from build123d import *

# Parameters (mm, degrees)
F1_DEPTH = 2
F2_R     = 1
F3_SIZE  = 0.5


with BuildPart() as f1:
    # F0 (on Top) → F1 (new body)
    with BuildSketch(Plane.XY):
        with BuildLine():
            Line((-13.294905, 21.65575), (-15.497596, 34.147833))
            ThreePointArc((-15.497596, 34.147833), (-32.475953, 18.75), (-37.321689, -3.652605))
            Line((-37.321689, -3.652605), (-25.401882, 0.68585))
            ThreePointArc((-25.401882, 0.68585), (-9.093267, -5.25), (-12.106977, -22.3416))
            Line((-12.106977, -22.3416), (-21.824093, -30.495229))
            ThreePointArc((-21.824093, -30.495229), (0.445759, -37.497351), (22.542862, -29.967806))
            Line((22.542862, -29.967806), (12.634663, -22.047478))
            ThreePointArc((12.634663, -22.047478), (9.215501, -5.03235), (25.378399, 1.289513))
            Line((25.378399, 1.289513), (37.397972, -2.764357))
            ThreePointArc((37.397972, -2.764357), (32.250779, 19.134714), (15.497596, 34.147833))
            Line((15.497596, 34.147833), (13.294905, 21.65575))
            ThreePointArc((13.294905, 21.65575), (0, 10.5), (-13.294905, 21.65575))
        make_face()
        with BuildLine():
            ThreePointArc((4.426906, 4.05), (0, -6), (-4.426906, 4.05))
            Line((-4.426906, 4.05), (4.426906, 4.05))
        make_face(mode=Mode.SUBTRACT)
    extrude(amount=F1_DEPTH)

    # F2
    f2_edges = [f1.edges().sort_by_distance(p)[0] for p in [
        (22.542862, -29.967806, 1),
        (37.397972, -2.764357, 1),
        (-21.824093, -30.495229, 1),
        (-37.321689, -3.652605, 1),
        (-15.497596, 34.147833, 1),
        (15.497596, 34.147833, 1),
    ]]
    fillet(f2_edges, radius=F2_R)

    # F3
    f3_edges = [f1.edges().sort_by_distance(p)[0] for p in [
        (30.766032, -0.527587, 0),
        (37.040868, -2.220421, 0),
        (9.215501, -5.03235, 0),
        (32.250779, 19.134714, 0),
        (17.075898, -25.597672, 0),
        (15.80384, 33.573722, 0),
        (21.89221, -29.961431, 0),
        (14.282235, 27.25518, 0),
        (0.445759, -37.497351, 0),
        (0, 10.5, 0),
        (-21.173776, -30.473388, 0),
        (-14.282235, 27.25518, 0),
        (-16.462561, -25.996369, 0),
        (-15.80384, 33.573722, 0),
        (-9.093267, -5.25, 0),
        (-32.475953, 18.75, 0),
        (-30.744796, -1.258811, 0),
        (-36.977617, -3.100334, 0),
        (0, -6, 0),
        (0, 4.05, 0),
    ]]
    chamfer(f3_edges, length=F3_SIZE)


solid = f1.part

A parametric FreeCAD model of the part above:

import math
import FreeCAD as App
import Part
import Sketcher

V = App.Vector
Q = App.Units.Quantity


def edges_at(feature, points):
    """Names of the edges that pass closest to the given points."""
    edges = feature.Shape.Edges
    near = lambda p: min(range(len(edges)), key=lambda i: edges[i].distToShape(Part.Vertex(*p))[0])
    return sorted({f"Edge{near(p) + 1}" for p in points})

doc = App.newDocument("Part")
body = doc.addObject("PartDesign::Body", "Body")

# Sketch on XY plane
sketch1 = body.newObject("Sketcher::SketchObject", "Sketch")
sketch1.AttachmentSupport = (doc.getObject("XY_Plane"), [""])
sketch1.MapMode = "FlatFace"
sketch1.addGeometry([
    Part.LineSegment(V(-13.294905, 21.65575, 0), V(-15.497596, 34.147833, 0)),  # 0
    Part.ArcOfCircle(Part.Circle(V(-0.000002, 0.000001, 0), V(0, 0, 1), 37.499998), math.radians(114.410366), math.radians(185.589634)),  # 1
    Part.LineSegment(V(-37.321689, -3.652605, 0), V(-25.401882, 0.68585, 0)),  # 2
    Part.ArcOfCircle(Part.Circle(V(-20.78461, -12, 0), V(0, 0, 1), 13.5), math.radians(-50), math.radians(110.000002)),  # 3
    Part.LineSegment(V(-12.106977, -22.3416, 0), V(-21.824093, -30.495229, 0)),  # 4
    Part.ArcOfCircle(Part.Circle(V(0, -0.000001, 0), V(0, 0, 1), 37.5), math.radians(-125.589631), math.radians(-53.048198)),  # 5
    Part.LineSegment(V(22.542862, -29.967806, 0), V(12.634663, -22.047478, 0)),  # 6
    Part.ArcOfCircle(Part.Circle(V(21.064002, -11.502515, 0), V(0, 0, 1), 13.5), math.radians(71.362171), math.radians(231.362171)),  # 7
    Part.LineSegment(V(25.378399, 1.289513, 0), V(37.397972, -2.764357, 0)),  # 8
    Part.ArcOfCircle(Part.Circle(V(0.000003, 0.000002, 0), V(0, 0, 1), 37.499997), math.radians(-4.227464), math.radians(65.589634)),  # 9
    Part.LineSegment(V(15.497596, 34.147833, 0), V(13.294905, 21.65575, 0)),  # 10
    Part.ArcOfCircle(Part.Circle(V(0, 24, 0), V(0, 0, 1), 13.5), math.radians(-170.000001), math.radians(-9.999999)),  # 11
    Part.LineSegment(V(-4.426906, 4.05, 0), V(4.426906, 4.05, 0)),  # 12
    Part.ArcOfCircle(Part.Circle(V(0, 0, 0), V(0, 0, 1), 6), math.radians(137.545846), math.radians(402.454154)),  # 13
], False)
sketch1.addConstraint([
    Sketcher.Constraint("Coincident", 0, 2, 1, 1),
    Sketcher.Constraint("Coincident", 1, 2, 2, 1),
    Sketcher.Constraint("Tangent", 2, 2, 3, 2),
    Sketcher.Constraint("Tangent", 3, 1, 4, 1),
    Sketcher.Constraint("Coincident", 4, 2, 5, 1),
    Sketcher.Constraint("Coincident", 5, 2, 6, 1),
    Sketcher.Constraint("Tangent", 6, 2, 7, 2),
    Sketcher.Constraint("Tangent", 7, 1, 8, 1),
    Sketcher.Constraint("Coincident", 8, 2, 9, 1),
    Sketcher.Constraint("Coincident", 9, 2, 10, 1),
    Sketcher.Constraint("Tangent", 10, 2, 11, 2),
    Sketcher.Constraint("Tangent", 11, 1, 0, 1),
    Sketcher.Constraint("Coincident", 12, 1, 13, 1),
    Sketcher.Constraint("Coincident", 13, 2, 12, 2),
    Sketcher.Constraint("Horizontal", 12),
    Sketcher.Constraint("Coincident", 1, 3, -1, 1),
    Sketcher.Constraint("Coincident", 5, 3, -1, 1),
    Sketcher.Constraint("Coincident", 9, 3, -1, 1),
    Sketcher.Constraint("Coincident", 13, 3, -1, 1),
    Sketcher.Constraint("Equal", 3, 7),
    Sketcher.Constraint("Equal", 1, 9),
    Sketcher.Constraint("Equal", 7, 11),
    Sketcher.Constraint("Symmetric", 10, 2, 11, 1, -2),
    Sketcher.Constraint("Equal", 0, 2),
    Sketcher.Constraint("Equal", 2, 4),
    Sketcher.Constraint("Equal", 4, 6),
    Sketcher.Constraint("Equal", 6, 8),
    Sketcher.Constraint("Radius", 13, 6.0),
    Sketcher.Constraint("Radius", 3, 13.5),
    Sketcher.Constraint("Radius", 5, 37.5),
    Sketcher.Constraint("Angle", 0, Q("99.999999 deg")),
    Sketcher.Constraint("Angle", 2, Q("20 deg")),
    Sketcher.Constraint("Angle", 4, Q("-139.999998 deg")),
    Sketcher.Constraint("DistanceY", 3, 3, -1, 1, 12.0),
    Sketcher.Constraint("DistanceY", -1, 1, 11, 3, 24.0),
    Sketcher.Constraint("DistanceY", -1, 1, 12, 1, 4.05),
    Sketcher.Constraint("DistanceX", -1, 1, 7, 3, 21.064002),
    Sketcher.Constraint("DistanceX", -1, 1, 7, 1, 25.378399),
])
pad1 = body.newObject("PartDesign::Pad", "Pad")
pad1.Profile = sketch1
pad1.Length = 2
doc.recompute()

fillet = body.newObject("PartDesign::Fillet", "Fillet")
fillet.Base = (pad1, edges_at(pad1, [
    (22.543, -29.968, 1),
    (37.398, -2.764, 1),
    (-21.824, -30.495, 1),
    (-37.322, -3.653, 1),
    (-15.498, 34.148, 1),
    (15.498, 34.148, 1),
]))
fillet.Radius = 1
doc.recompute()

chamfer = body.newObject("PartDesign::Chamfer", "Chamfer")
chamfer.Base = (fillet, edges_at(fillet, [
    (30.766, -0.528, 0),
    (37.041, -2.22, 0),
    (9.216, -5.032, 0),
    (32.251, 19.135, 0),
    (17.076, -25.598, 0),
    (15.804, 33.574, 0),
    (21.892, -29.961, 0),
    (14.282, 27.255, 0),
    (0.446, -37.497, 0),
    (0, 10.5, 0),
    (-21.174, -30.473, 0),
    (-14.282, 27.255, 0),
    (-16.463, -25.996, 0),
    (-15.804, 33.574, 0),
    (-9.093, -5.25, 0),
    (-32.476, 18.75, 0),
    (-30.745, -1.259, 0),
    (-36.978, -3.1, 0),
    (0, -6, 0),
    (0, 4.05, 0),
]))
chamfer.Size = 0.5

doc.recompute()
